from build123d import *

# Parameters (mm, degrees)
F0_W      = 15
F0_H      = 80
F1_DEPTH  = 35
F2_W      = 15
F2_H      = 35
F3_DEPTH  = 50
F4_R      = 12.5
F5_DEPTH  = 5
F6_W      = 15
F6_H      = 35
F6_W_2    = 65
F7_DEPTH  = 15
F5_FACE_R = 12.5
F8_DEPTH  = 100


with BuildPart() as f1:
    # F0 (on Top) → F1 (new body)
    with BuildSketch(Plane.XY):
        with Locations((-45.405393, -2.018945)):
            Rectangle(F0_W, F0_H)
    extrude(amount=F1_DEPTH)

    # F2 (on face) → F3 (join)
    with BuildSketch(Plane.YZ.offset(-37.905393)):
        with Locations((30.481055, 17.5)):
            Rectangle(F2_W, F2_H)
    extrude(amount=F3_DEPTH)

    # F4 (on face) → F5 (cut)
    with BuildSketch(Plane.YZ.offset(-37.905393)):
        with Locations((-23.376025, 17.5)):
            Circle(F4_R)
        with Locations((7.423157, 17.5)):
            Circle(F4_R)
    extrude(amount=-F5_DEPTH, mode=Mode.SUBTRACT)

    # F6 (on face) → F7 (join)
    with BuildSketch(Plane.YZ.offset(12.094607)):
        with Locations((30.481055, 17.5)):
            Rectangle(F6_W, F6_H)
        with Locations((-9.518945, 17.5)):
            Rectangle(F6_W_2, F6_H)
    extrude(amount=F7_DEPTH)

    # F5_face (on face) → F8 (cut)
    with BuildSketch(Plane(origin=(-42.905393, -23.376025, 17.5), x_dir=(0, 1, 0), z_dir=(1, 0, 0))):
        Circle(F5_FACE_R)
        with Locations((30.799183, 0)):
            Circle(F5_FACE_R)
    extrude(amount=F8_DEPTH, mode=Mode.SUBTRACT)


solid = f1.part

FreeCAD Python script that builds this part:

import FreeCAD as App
import Part
import Sketcher
Q = App.Units.Quantity

doc = App.newDocument("Part")
params = doc.addObject("Spreadsheet::Sheet", "Params")
for row, (alias, value) in enumerate([
    ("sketch1_width", "15 mm"),
    ("sketch1_height", "80 mm"),
    ("pad1_length", "35 mm"),
    ("sketch2_width", "15 mm"),
    ("sketch2_height", "35 mm"),
    ("pad2_length", "50 mm"),
    ("sketch3_diameter", "25 mm"),
    ("pocket1_length", "5 mm"),
    ("sketch4_width", "80 mm"),
    ("sketch4_height", "35 mm"),
    ("pad3_length", "15 mm"),
    ("sketch5_diameter", "25 mm"),
    ("pocket2_length", "100 mm"),
], start=1):
    params.set(f"A{row}", alias)
    params.set(f"B{row}", "=" + value)
    params.setAlias(f"B{row}", alias)

body = doc.addObject("PartDesign::Body", "Body")

# Sketch on XY plane
sketch1 = body.newObject("Sketcher::SketchObject", "Sketch")
sketch1.AttachmentSupport = (doc.getObject("XY_Plane"), [""])
sketch1.MapMode = "FlatFace"
sketch1.addGeometry([
    Part.LineSegment(App.Vector(-53, 38, 0), App.Vector(-53, -42, 0)),
    Part.LineSegment(App.Vector(-53, -42, 0), App.Vector(-38, -42, 0)),
    Part.LineSegment(App.Vector(-38, -42, 0), App.Vector(-38, 38, 0)),
    Part.LineSegment(App.Vector(-38, 38, 0), App.Vector(-53, 38, 0)),
], False)
sketch1.addConstraint([
    Sketcher.Constraint("Coincident", 0, 2, 1, 1),
    Sketcher.Constraint("Coincident", 1, 2, 2, 1),
    Sketcher.Constraint("Coincident", 2, 2, 3, 1),
    Sketcher.Constraint("Coincident", 3, 2, 0, 1),
    Sketcher.Constraint("Vertical", 0),
    Sketcher.Constraint("Horizontal", 1),
    Sketcher.Constraint("Vertical", 2),
    Sketcher.Constraint("Horizontal", 3),
    Sketcher.Constraint("DistanceX", 1, 1, 1, 2, Q("15 mm")),
    Sketcher.Constraint("DistanceY", 0, 2, 0, 1, Q("80 mm")),
    Sketcher.Constraint("DistanceX", 0, 2, -1, 1, Q("52.905393 mm")),
    Sketcher.Constraint("DistanceY", 0, 2, -1, 1, Q("42.018945 mm")),
])
sketch1.setExpression("Constraints[8]", "Params.sketch1_width")
sketch1.setExpression("Constraints[9]", "Params.sketch1_height")
pad1 = body.newObject("PartDesign::Pad", "Pad")
pad1.Profile = sketch1
pad1.setExpression("Length", "Params.pad1_length")

# Sketch on YZ plane
sketch2 = body.newObject("Sketcher::SketchObject", "Sketch001")
sketch2.AttachmentSupport = (doc.getObject("YZ_Plane"), [""])
sketch2.MapMode = "FlatFace"
sketch2.AttachmentOffset = App.Placement(App.Vector(0, 0, -37.905393), App.Rotation())
sketch2.addGeometry([
    Part.LineSegment(App.Vector(23, 35, 0), App.Vector(23, 0, 0)),
    Part.LineSegment(App.Vector(23, 0, 0), App.Vector(38, 0, 0)),
    Part.LineSegment(App.Vector(38, 0, 0), App.Vector(38, 35, 0)),
    Part.LineSegment(App.Vector(38, 35, 0), App.Vector(23, 35, 0)),
], False)
sketch2.addConstraint([
    Sketcher.Constraint("Coincident", 0, 2, 1, 1),
    Sketcher.Constraint("Coincident", 1, 2, 2, 1),
    Sketcher.Constraint("Coincident", 2, 2, 3, 1),
    Sketcher.Constraint("Coincident", 3, 2, 0, 1),
    Sketcher.Constraint("Vertical", 0),
    Sketcher.Constraint("Horizontal", 1),
    Sketcher.Constraint("Vertical", 2),
    Sketcher.Constraint("Horizontal", 3),
    Sketcher.Constraint("PointOnObject", 0, 2, -1),
    Sketcher.Constraint("DistanceX", 1, 1, 1, 2, Q("15 mm")),
    Sketcher.Constraint("DistanceY", 0, 2, 0, 1, Q("35 mm")),
    Sketcher.Constraint("DistanceX", -1, 1, 0, 2, Q("22.981055 mm")),
])
sketch2.setExpression("Constraints[9]", "Params.sketch2_width")
sketch2.setExpression("Constraints[10]", "Params.sketch2_height")
pad2 = body.newObject("PartDesign::Pad", "Pad001")
pad2.Profile = sketch2
pad2.setExpression("Length", "Params.pad2_length")

# Sketch on YZ plane
sketch3 = body.newObject("Sketcher::SketchObject", "Sketch002")
sketch3.AttachmentSupport = (doc.getObject("YZ_Plane"), [""])
sketch3.MapMode = "FlatFace"
sketch3.AttachmentOffset = App.Placement(App.Vector(0, 0, -37.905393), App.Rotation())
sketch3.addGeometry([
    Part.Circle(App.Vector(-23, 18, 0), App.Vector(0, 0, 1), 12),
    Part.Circle(App.Vector(7, 18, 0), App.Vector(0, 0, 1), 12),
], False)
sketch3.addConstraint([
    Sketcher.Constraint("Equal", 0, 1),
    Sketcher.Constraint("Horizontal", 0, 3, 1, 3),
    Sketcher.Constraint("Diameter", 0, Q("25 mm")),
    Sketcher.Constraint("DistanceY", -1, 1, 0, 3, Q("17.5 mm")),
    Sketcher.Constraint("DistanceX", 0, 3, 1, 3, Q("30.799182 mm")),
    Sketcher.Constraint("DistanceX", 0, 3, -1, 1, Q("23.376025 mm")),
])
sketch3.setExpression("Constraints[2]", "Params.sketch3_diameter")
pocket1 = body.newObject("PartDesign::Pocket", "Pocket")
pocket1.Profile = sketch3
pocket1.setExpression("Length", "Params.pocket1_length")

# Sketch on YZ plane
sketch4 = body.newObject("Sketcher::SketchObject", "Sketch003")
sketch4.AttachmentSupport = (doc.getObject("YZ_Plane"), [""])
sketch4.MapMode = "FlatFace"
sketch4.AttachmentOffset = App.Placement(App.Vector(0, 0, 12.094607), App.Rotation())
sketch4.addGeometry([
    Part.LineSegment(App.Vector(38, 0, 0), App.Vector(38, 35, 0)),
    Part.LineSegment(App.Vector(38, 35, 0), App.Vector(-42, 35, 0)),
    Part.LineSegment(App.Vector(-42, 35, 0), App.Vector(-42, 0, 0)),
    Part.LineSegment(App.Vector(-42, 0, 0), App.Vector(38, 0, 0)),
], False)
sketch4.addConstraint([
    Sketcher.Constraint("Coincident", 0, 2, 1, 1),
    Sketcher.Constraint("Coincident", 1, 2, 2, 1),
    Sketcher.Constraint("Coincident", 2, 2, 3, 1),
    Sketcher.Constraint("Coincident", 3, 2, 0, 1),
    Sketcher.Constraint("Vertical", 0),
    Sketcher.Constraint("Horizontal", 1),
    Sketcher.Constraint("Vertical", 2),
    Sketcher.Constraint("Horizontal", 3),
    Sketcher.Constraint("PointOnObject", 2, 2, -1),
    Sketcher.Constraint("DistanceX", 1, 2, 1, 1, Q("80 mm")),
    Sketcher.Constraint("DistanceY", 0, 1, 0, 2, Q("35 mm")),
    Sketcher.Constraint("DistanceX", -1, 1, 0, 2, Q("37.981055 mm")),
])
sketch4.setExpression("Constraints[9]", "Params.sketch4_width")
sketch4.setExpression("Constraints[10]", "Params.sketch4_height")
pad3 = body.newObject("PartDesign::Pad", "Pad002")
pad3.Profile = sketch4
pad3.setExpression("Length", "Params.pad3_length")

# Sketch on YZ plane
sketch5 = body.newObject("Sketcher::SketchObject", "Sketch004")
sketch5.AttachmentSupport = (doc.getObject("YZ_Plane"), [""])
sketch5.MapMode = "FlatFace"
sketch5.AttachmentOffset = App.Placement(App.Vector(0, 0, -42.905393), App.Rotation())
sketch5.addGeometry([
    Part.Circle(App.Vector(-23, 18, 0), App.Vector(0, 0, 1), 12),
    Part.Circle(App.Vector(7, 18, 0), App.Vector(0, 0, 1), 12),
], False)
sketch5.addConstraint([
    Sketcher.Constraint("Equal", 0, 1),
    Sketcher.Constraint("Horizontal", 0, 3, 1, 3),
    Sketcher.Constraint("Diameter", 0, Q("25 mm")),
    Sketcher.Constraint("DistanceY", -1, 1, 0, 3, Q("17.5 mm")),
    Sketcher.Constraint("DistanceX", 0, 3, -1, 1, Q("23.376025 mm")),
    Sketcher.Constraint("DistanceX", -1, 1, 1, 3, Q("7.423158 mm")),
])
sketch5.setExpression("Constraints[2]", "Params.sketch5_diameter")
pocket2 = body.newObject("PartDesign::Pocket", "Pocket001")
pocket2.Profile = sketch5
pocket2.setExpression("Length", "Params.pocket2_length")
pocket2.Reversed = True

doc.recompute()
